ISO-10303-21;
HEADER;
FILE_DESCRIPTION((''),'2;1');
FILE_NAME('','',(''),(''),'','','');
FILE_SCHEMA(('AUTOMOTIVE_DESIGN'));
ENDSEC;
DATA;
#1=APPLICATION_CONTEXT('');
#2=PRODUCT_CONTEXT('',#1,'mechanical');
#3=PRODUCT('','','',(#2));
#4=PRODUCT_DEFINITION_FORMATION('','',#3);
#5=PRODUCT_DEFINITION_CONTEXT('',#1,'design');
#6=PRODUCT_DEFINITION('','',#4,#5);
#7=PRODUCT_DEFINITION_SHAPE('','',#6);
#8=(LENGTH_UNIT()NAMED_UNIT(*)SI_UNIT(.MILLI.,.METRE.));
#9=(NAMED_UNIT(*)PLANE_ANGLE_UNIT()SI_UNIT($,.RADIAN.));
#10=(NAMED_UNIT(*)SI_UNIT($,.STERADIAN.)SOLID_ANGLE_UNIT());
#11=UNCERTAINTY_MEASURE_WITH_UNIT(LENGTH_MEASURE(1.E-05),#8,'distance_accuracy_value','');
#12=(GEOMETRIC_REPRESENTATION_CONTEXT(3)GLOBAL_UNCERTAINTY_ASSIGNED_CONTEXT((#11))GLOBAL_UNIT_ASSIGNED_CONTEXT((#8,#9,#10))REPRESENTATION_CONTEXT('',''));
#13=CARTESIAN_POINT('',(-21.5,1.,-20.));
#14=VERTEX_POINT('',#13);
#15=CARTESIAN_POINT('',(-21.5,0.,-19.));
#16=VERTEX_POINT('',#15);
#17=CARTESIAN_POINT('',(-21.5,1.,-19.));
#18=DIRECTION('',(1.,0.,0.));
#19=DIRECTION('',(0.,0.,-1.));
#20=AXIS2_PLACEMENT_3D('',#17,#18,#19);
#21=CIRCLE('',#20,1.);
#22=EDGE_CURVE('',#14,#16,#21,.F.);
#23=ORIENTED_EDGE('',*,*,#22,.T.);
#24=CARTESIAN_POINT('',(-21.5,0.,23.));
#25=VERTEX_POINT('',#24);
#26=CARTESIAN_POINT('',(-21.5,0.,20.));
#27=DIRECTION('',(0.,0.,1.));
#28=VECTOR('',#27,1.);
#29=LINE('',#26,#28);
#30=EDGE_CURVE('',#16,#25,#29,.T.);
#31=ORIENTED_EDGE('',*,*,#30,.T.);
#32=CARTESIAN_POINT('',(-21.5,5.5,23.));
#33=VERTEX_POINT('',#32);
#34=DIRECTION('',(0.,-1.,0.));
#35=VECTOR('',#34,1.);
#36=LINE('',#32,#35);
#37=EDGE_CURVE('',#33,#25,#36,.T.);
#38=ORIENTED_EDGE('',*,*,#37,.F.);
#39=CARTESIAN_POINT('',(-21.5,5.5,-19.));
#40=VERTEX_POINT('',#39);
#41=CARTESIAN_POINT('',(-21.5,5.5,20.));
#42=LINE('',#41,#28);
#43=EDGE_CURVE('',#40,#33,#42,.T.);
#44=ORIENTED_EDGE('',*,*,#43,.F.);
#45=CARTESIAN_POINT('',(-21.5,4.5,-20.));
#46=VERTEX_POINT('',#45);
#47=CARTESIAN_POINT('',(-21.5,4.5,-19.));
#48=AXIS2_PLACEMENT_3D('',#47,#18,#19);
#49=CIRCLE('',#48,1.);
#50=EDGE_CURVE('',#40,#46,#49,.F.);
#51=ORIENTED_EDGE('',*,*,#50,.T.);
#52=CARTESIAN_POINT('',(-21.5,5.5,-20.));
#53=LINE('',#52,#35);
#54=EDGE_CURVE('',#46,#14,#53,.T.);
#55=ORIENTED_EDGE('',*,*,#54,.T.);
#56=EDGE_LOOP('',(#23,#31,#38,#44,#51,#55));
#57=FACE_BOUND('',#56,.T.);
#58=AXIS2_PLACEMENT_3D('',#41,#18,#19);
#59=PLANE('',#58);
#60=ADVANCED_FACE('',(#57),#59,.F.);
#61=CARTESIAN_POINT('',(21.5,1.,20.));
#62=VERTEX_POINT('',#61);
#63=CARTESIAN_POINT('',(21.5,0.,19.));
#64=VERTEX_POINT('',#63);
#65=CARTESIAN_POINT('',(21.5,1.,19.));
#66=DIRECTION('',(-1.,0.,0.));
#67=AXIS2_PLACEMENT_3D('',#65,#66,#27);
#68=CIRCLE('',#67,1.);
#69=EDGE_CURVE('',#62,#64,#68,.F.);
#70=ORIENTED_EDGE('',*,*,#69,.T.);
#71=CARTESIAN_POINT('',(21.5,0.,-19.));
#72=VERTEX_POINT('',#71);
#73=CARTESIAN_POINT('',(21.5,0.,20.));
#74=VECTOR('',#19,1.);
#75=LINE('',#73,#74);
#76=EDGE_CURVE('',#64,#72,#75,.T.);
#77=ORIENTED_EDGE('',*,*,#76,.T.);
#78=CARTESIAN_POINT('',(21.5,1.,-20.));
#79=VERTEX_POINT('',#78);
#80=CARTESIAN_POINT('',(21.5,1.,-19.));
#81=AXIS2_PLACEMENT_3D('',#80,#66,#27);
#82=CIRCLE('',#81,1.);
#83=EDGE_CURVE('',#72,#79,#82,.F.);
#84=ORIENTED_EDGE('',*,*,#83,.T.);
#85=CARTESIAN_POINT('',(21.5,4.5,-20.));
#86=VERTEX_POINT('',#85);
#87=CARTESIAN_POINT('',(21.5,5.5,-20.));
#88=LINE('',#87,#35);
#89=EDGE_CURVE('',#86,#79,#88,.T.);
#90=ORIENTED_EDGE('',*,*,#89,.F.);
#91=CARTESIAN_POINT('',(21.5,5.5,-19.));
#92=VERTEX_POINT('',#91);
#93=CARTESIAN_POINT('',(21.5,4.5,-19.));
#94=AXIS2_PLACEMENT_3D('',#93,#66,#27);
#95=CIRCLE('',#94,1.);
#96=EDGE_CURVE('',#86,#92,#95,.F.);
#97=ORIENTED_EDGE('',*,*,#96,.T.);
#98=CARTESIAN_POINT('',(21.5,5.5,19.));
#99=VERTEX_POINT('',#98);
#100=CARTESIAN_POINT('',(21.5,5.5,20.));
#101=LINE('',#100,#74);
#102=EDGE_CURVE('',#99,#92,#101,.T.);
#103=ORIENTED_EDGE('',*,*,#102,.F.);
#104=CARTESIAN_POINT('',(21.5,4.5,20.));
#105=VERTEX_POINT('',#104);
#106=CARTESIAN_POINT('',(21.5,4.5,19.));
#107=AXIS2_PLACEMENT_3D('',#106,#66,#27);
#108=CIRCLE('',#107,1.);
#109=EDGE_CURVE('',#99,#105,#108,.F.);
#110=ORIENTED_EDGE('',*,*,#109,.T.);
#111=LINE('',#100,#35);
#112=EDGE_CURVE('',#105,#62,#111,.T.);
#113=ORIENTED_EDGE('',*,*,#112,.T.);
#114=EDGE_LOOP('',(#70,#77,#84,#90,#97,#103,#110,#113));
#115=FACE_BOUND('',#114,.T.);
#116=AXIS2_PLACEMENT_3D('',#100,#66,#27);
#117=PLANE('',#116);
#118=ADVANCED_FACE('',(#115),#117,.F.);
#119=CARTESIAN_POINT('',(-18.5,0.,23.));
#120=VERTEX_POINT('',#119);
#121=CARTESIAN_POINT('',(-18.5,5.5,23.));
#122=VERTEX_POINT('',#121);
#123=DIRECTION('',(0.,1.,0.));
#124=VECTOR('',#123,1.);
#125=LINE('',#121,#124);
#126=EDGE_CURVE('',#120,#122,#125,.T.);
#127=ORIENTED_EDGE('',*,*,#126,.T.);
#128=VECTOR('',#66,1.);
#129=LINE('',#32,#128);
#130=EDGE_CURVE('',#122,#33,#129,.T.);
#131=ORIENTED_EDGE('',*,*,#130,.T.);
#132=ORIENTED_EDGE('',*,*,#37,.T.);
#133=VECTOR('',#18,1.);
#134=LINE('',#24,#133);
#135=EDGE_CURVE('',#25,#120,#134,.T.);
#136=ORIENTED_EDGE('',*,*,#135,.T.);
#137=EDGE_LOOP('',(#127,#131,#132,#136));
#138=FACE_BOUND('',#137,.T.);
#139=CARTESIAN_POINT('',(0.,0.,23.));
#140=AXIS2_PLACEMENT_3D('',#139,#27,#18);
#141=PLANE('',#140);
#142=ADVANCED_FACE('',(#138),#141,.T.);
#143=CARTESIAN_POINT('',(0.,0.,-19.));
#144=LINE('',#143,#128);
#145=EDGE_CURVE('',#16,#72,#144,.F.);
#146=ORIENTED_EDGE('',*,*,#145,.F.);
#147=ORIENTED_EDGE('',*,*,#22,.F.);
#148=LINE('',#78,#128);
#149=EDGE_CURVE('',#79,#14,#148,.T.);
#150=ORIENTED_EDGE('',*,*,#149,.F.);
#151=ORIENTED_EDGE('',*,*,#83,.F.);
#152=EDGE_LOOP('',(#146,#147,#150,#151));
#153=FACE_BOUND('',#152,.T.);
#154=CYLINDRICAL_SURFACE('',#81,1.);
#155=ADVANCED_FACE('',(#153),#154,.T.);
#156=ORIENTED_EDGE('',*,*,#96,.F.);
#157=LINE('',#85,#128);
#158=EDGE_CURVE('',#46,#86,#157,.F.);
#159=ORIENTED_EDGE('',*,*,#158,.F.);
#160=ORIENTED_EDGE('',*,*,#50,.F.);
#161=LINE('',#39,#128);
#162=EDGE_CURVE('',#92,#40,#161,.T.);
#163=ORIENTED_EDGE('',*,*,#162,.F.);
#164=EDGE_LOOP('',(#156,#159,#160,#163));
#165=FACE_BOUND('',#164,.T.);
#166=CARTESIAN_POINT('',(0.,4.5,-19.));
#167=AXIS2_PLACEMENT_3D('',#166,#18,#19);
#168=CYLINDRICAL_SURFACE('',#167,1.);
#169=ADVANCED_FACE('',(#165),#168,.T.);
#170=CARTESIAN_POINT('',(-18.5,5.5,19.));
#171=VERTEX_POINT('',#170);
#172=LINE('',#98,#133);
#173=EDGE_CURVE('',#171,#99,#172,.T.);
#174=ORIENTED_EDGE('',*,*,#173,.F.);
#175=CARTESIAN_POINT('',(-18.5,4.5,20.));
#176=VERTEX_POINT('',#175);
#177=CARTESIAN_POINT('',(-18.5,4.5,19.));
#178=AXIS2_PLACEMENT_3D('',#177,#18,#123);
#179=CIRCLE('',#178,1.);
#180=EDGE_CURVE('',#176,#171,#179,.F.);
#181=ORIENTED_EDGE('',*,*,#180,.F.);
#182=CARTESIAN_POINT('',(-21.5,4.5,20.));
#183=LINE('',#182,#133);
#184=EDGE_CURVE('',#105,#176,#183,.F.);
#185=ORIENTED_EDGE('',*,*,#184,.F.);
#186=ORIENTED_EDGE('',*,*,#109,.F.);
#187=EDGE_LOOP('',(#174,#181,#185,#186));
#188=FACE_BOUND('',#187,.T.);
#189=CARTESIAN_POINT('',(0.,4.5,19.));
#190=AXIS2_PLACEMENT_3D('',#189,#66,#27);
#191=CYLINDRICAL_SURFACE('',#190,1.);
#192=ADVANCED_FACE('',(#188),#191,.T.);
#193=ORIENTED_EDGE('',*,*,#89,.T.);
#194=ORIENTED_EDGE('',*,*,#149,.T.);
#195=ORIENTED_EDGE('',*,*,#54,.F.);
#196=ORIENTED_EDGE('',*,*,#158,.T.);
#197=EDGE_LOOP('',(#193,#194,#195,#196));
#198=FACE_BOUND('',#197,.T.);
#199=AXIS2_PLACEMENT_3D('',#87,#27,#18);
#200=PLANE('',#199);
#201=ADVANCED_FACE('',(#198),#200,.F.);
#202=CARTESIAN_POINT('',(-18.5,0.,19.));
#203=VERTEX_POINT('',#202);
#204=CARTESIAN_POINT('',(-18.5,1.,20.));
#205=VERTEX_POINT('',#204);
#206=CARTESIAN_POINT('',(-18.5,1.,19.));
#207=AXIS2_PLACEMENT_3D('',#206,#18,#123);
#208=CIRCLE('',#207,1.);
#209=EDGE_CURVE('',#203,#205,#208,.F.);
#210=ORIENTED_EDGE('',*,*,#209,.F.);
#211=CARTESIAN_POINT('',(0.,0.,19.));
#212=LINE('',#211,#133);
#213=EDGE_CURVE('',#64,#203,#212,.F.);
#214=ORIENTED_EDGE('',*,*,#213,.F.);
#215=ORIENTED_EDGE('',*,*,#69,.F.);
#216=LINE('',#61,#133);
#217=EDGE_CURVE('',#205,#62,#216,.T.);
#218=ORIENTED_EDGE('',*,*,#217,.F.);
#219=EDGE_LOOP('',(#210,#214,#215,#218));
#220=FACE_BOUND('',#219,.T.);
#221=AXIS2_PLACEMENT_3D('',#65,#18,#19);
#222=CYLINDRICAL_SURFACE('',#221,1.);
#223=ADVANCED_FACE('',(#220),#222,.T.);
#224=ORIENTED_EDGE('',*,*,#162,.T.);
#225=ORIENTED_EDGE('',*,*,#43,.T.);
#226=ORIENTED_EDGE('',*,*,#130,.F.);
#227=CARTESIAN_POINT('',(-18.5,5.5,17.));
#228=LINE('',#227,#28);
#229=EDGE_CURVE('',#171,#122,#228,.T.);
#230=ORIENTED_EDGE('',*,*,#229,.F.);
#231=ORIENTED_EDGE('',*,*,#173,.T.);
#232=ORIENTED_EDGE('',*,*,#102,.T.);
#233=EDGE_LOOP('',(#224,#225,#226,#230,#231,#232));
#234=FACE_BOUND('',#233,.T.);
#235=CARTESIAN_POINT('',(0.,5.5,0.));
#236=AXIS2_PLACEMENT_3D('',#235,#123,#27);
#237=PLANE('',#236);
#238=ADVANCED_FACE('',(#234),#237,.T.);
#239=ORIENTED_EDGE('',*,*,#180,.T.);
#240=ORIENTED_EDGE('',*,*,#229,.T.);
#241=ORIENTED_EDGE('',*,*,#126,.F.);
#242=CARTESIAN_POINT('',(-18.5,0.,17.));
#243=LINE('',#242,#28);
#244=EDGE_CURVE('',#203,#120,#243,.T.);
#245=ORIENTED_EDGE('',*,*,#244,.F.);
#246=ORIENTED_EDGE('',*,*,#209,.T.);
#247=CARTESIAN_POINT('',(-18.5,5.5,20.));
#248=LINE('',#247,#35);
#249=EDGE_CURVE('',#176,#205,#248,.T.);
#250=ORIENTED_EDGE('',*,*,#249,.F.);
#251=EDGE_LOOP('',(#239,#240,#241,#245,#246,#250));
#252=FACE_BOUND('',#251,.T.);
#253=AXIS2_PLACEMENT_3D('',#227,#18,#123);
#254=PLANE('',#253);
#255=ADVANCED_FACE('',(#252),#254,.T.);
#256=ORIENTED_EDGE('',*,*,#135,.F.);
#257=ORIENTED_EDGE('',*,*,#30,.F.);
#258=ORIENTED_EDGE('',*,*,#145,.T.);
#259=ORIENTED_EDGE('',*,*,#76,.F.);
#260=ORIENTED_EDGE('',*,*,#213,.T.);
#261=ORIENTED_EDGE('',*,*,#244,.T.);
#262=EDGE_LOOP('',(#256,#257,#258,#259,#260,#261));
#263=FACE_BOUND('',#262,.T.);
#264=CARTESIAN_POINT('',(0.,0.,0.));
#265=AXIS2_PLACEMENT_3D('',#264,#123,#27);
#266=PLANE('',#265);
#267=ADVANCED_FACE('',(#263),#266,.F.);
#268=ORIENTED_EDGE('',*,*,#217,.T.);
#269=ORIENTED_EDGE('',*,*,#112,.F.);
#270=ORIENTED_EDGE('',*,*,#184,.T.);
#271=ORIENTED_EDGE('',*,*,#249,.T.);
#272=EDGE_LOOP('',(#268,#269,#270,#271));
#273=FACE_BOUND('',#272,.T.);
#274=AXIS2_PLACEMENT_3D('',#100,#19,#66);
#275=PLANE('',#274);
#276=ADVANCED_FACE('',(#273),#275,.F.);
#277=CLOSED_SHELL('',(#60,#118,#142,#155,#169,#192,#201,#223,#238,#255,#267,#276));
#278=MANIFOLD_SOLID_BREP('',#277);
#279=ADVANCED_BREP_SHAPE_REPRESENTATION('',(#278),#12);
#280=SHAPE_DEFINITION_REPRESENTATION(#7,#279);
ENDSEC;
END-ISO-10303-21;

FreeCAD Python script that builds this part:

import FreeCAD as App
import Part
import Sketcher
from FreeCAD import Vector


def edges_at(feature, points):
    """Names of the edges that pass closest to the given points."""
    edges = feature.Shape.Edges
    near = lambda p: min(range(len(edges)), key=lambda i: edges[i].distToShape(Part.Vertex(*p))[0])
    return sorted({f"Edge{near(p) + 1}" for p in points})

doc = App.newDocument("Part")
params = doc.addObject("Spreadsheet::Sheet", "Params")
for row, (alias, value) in enumerate([
    ("sketch1_width", "43 mm"),
    ("sketch1_height", "40 mm"),
    ("pad1_length", "5.5 mm"),
    ("fillet_radius", "1 mm"),
    ("sketch2_width", "3 mm"),
    ("sketch2_height", "5.5 mm"),
    ("pad2_length", "3 mm"),
    ("pad2_length2", "3 mm"),
], start=1):
    params.set(f"A{row}", alias)
    params.set(f"B{row}", "=" + value)
    params.setAlias(f"B{row}", alias)

body = doc.addObject("PartDesign::Body", "Body")

# Sketch on XZ plane
sketch1 = body.newObject("Sketcher::SketchObject", "Sketch")
sketch1.AttachmentSupport = (doc.getObject("XZ_Plane"), [""])
sketch1.MapMode = "FlatFace"
sketch1.addGeometry([
    Part.LineSegment(Vector(-21.5, -20, 0), Vector(-21.5, 20, 0)),
    Part.LineSegment(Vector(-21.5, 20, 0), Vector(21.5, 20, 0)),
    Part.LineSegment(Vector(21.5, 20, 0), Vector(21.5, -20, 0)),
    Part.LineSegment(Vector(21.5, -20, 0), Vector(-21.5, -20, 0)),
], False)
sketch1.addConstraint([
    Sketcher.Constraint("Coincident", 0, 2, 1, 1),
    Sketcher.Constraint("Coincident", 1, 2, 2, 1),
    Sketcher.Constraint("Coincident", 2, 2, 3, 1),
    Sketcher.Constraint("Coincident", 3, 2, 0, 1),
    Sketcher.Constraint("Vertical", 0),
    Sketcher.Constraint("Horizontal", 1),
    Sketcher.Constraint("Vertical", 2),
    Sketcher.Constraint("Horizontal", 3),
    Sketcher.Constraint("Symmetric", 0, 2, 2, 2, -1, 1),
    Sketcher.Constraint("DistanceX", 1, 1, 1, 2, 43.0),
    Sketcher.Constraint("DistanceY", 0, 1, 0, 2, 40.0),
])
sketch1.setExpression("Constraints[9]", "Params.sketch1_width")
sketch1.setExpression("Constraints[10]", "Params.sketch1_height")
pad1 = body.newObject("PartDesign::Pad", "Pad")
pad1.Profile = sketch1
pad1.setExpression("Length", "Params.pad1_length")
pad1.Reversed = True
doc.recompute()

fillet = body.newObject("PartDesign::Fillet", "Fillet")
fillet.Base = (pad1, edges_at(pad1, [
    (0, 5.5, -20),
    (0, 0, -20),
    (0, 0, 20),
    (0, 5.5, 20),
]))
fillet.setExpression("Radius", "Params.fillet_radius")

# Sketch on XY plane
sketch2 = body.newObject("Sketcher::SketchObject", "Sketch001")
sketch2.AttachmentSupport = (doc.getObject("XY_Plane"), [""])
sketch2.MapMode = "FlatFace"
sketch2.AttachmentOffset = App.Placement(Vector(0, 0, 20), App.Rotation())
sketch2.addGeometry([
    Part.LineSegment(Vector(-21.5, 5.5, 0), Vector(-21.5, 0, 0)),
    Part.LineSegment(Vector(-21.5, 0, 0), Vector(-18.5, 0, 0)),
    Part.LineSegment(Vector(-18.5, 0, 0), Vector(-18.5, 5.5, 0)),
    Part.LineSegment(Vector(-18.5, 5.5, 0), Vector(-21.5, 5.5, 0)),
], False)
sketch2.addConstraint([
    Sketcher.Constraint("Coincident", 0, 2, 1, 1),
    Sketcher.Constraint("Coincident", 1, 2, 2, 1),
    Sketcher.Constraint("Coincident", 2, 2, 3, 1),
    Sketcher.Constraint("Coincident", 3, 2, 0, 1),
    Sketcher.Constraint("Vertical", 0),
    Sketcher.Constraint("Horizontal", 1),
    Sketcher.Constraint("Vertical", 2),
    Sketcher.Constraint("Horizontal", 3),
    Sketcher.Constraint("PointOnObject", 0, 2, -1),
    Sketcher.Constraint("DistanceX", 1, 1, 1, 2, 3.0),
    Sketcher.Constraint("DistanceY", 0, 2, 0, 1, 5.5),
    Sketcher.Constraint("DistanceX", 0, 2, -1, 1, 21.5),
])
sketch2.setExpression("Constraints[9]", "Params.sketch2_width")
sketch2.setExpression("Constraints[10]", "Params.sketch2_height")
pad2 = body.newObject("PartDesign::Pad", "Pad001")
pad2.Profile = sketch2
pad2.Type = "TwoLengths"
pad2.setExpression("Length", "Params.pad2_length")
pad2.setExpression("Length2", "Params.pad2_length2")

doc.recompute()
